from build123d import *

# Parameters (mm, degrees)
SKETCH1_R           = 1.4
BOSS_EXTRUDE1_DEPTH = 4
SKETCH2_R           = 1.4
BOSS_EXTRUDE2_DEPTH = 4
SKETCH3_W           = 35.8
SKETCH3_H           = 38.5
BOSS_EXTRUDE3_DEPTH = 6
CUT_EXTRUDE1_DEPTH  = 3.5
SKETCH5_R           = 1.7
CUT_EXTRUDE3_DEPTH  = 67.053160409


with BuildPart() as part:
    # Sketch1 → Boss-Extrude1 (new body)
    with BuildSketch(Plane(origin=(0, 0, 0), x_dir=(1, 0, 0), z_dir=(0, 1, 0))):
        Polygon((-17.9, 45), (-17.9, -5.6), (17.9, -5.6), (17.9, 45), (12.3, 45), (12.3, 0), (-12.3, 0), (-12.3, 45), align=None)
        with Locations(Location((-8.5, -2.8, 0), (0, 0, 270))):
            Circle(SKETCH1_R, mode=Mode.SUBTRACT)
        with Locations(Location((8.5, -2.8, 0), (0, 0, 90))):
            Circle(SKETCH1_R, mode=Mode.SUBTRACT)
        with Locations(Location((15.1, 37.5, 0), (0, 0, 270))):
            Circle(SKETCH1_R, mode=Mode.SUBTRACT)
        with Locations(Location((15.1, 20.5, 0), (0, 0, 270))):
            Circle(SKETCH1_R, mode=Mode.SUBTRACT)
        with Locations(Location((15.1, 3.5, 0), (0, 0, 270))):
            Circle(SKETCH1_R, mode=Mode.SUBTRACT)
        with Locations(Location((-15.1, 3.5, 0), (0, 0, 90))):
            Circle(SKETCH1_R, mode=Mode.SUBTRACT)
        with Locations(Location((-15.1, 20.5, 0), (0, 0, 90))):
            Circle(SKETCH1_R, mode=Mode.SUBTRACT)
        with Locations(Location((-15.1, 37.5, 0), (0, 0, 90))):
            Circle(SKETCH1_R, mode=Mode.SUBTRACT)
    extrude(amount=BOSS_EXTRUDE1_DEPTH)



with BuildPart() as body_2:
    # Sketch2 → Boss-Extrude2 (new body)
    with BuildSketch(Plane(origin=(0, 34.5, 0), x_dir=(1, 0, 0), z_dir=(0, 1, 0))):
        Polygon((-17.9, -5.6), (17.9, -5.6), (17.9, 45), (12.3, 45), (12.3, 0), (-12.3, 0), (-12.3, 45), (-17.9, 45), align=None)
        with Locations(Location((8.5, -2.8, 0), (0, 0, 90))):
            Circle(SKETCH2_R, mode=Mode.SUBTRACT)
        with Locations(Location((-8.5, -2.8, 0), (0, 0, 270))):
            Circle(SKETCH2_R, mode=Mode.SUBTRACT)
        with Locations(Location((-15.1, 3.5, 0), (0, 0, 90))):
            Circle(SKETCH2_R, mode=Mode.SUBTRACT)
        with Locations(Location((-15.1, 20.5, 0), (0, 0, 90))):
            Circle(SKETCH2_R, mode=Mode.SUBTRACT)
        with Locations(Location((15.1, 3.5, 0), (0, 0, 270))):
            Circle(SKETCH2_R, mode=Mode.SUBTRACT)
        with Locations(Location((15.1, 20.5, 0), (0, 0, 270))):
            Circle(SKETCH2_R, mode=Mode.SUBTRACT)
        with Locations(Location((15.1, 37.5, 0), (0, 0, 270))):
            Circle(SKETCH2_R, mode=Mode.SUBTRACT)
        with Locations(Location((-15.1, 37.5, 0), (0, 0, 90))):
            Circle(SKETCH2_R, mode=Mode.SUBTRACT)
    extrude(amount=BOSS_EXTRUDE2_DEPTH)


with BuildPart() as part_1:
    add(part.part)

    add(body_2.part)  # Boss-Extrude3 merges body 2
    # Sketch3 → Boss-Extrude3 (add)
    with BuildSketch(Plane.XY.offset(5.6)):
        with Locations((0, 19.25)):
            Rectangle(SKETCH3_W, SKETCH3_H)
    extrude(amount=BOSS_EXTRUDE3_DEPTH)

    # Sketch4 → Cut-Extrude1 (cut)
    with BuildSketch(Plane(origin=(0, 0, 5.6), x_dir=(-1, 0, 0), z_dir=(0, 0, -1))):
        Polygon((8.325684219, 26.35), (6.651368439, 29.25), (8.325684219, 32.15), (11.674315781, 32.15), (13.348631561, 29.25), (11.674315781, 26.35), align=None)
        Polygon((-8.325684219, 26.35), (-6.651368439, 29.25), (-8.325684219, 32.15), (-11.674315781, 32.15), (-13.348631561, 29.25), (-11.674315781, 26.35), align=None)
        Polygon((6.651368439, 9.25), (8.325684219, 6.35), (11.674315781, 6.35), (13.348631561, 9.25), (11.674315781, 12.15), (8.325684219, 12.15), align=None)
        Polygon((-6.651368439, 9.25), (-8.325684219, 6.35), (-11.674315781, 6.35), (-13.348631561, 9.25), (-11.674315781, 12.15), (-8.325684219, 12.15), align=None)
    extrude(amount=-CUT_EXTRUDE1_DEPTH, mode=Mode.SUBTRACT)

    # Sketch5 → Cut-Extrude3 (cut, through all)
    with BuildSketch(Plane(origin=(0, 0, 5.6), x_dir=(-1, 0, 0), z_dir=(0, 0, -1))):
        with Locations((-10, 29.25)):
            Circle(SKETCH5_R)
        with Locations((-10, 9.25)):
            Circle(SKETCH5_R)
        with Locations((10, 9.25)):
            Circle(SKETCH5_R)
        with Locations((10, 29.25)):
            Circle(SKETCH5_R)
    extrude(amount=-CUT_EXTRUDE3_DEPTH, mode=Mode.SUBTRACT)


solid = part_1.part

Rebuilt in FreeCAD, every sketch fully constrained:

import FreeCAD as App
import Part
import Sketcher

V = App.Vector
Q = App.Units.Quantity


def add_polygon(sketch, points):
    """Adds a closed chain of lines whose ends are joined by coincident constraints."""
    first, n = sketch.GeometryCount, len(points)
    for a, b in zip(points, points[1:] + points[:1]):
        sketch.addGeometry(Part.LineSegment(App.Vector(*a, 0), App.Vector(*b, 0)), False)
    for i in range(n):
        sketch.addConstraint(Sketcher.Constraint("Coincident", first + i, 2, first + (i + 1) % n, 1))

doc = App.newDocument("Part")
body = doc.addObject("PartDesign::Body", "Body")

# Sketch on XZ plane
sketch1 = body.newObject("Sketcher::SketchObject", "Sketch")
sketch1.AttachmentSupport = (doc.getObject("XZ_Plane"), [""])
sketch1.MapMode = "FlatFace"
add_polygon(sketch1, [(-17.9, -45), (-17.9, 5.6), (17.9, 5.6), (17.9, -45), (12.3, -45), (12.3, 0), (-12.3, 0), (-12.3, -45)])  # lines 0-7
sketch1.addGeometry(Part.Circle(V(-8.5, 2.8, 0), V(0, 0, 1), 1.4), False)  # 8
sketch1.addGeometry(Part.Circle(V(-15.1, -3.5, 0), V(0, 0, 1), 1.4), False)  # 9
sketch1.addGeometry(Part.Circle(V(8.5, 2.8, 0), V(0, 0, 1), 1.4), False)  # 10
sketch1.addGeometry(Part.Circle(V(15.1, -3.5, 0), V(0, 0, 1), 1.4), False)  # 11
sketch1.addGeometry(Part.Circle(V(-15.1, -20.5, 0), V(0, 0, 1), 1.4), False)  # 12
sketch1.addGeometry(Part.Circle(V(-15.1, -37.5, 0), V(0, 0, 1), 1.4), False)  # 13
sketch1.addGeometry(Part.Circle(V(15.1, -20.5, 0), V(0, 0, 1), 1.4), False)  # 14
sketch1.addGeometry(Part.Circle(V(15.1, -37.5, 0), V(0, 0, 1), 1.4), False)  # 15
sketch1.addConstraint([
    Sketcher.Constraint("Vertical", 0),
    Sketcher.Constraint("Horizontal", 1),
    Sketcher.Constraint("Vertical", 2),
    Sketcher.Constraint("Horizontal", 3),
    Sketcher.Constraint("Vertical", 4),
    Sketcher.Constraint("Horizontal", 5),
    Sketcher.Constraint("Vertical", 6),
    Sketcher.Constraint("Horizontal", 7),
    Sketcher.Constraint("Equal", 8, 9),
    Sketcher.Constraint("Equal", 9, 10),
    Sketcher.Constraint("Equal", 10, 11),
    Sketcher.Constraint("Equal", 11, 12),
    Sketcher.Constraint("Equal", 12, 13),
    Sketcher.Constraint("Equal", 13, 14),
    Sketcher.Constraint("Equal", 14, 15),
    Sketcher.Constraint("Symmetric", 4, 2, 5, 2, -1, 1),
    Sketcher.Constraint("Symmetric", 8, 3, 10, 3, -2),
    Sketcher.Constraint("Symmetric", 9, 3, 11, 3, -2),
    Sketcher.Constraint("Symmetric", 12, 3, 14, 3, -2),
    Sketcher.Constraint("Symmetric", 13, 3, 15, 3, -2),
    Sketcher.Constraint("Symmetric", 2, 2, 7, 2, -2),
    Sketcher.Constraint("Vertical", 9, 3, 12, 3),
    Sketcher.Constraint("Vertical", 12, 3, 13, 3),
    Sketcher.Constraint("Diameter", 8, 2.8),
    Sketcher.Constraint("DistanceY", 4, 1, 4, 2, 45.0),
    Sketcher.Constraint("DistanceX", 1, 1, 1, 2, 35.8),
    Sketcher.Constraint("DistanceX", 3, 2, 3, 1, 5.6),
    Sketcher.Constraint("DistanceY", 0, 1, 0, 2, 50.6),
    Sketcher.Constraint("DistanceX", 8, 3, 10, 3, 17.0),
    Sketcher.Constraint("DistanceY", 12, 3, 9, 3, 17.0),
    Sketcher.Constraint("DistanceY", 13, 3, 12, 3, 17.0),
    Sketcher.Constraint("DistanceX", 0, 2, 11, 3, 33.0),
    Sketcher.Constraint("DistanceY", -1, 1, 8, 3, 2.8),
    Sketcher.Constraint("DistanceY", 9, 3, -1, 1, 3.5),
])
pad1 = body.newObject("PartDesign::Pad", "Pad")
pad1.Profile = sketch1
pad1.Length = 4
pad1.Reversed = True
body2 = doc.addObject("PartDesign::Body", "Body001")

# Sketch on XZ plane
sketch2 = body2.newObject("Sketcher::SketchObject", "Sketch001")
sketch2.AttachmentSupport = (doc.getObject("XZ_Plane001"), [""])
sketch2.MapMode = "FlatFace"
sketch2.AttachmentOffset = App.Placement(V(0, 0, -34.5), App.Rotation())
add_polygon(sketch2, [(-17.9, 5.6), (17.9, 5.6), (17.9, -45), (12.3, -45), (12.3, 0), (-12.3, 0), (-12.3, -45), (-17.9, -45)])  # lines 0-7
sketch2.addGeometry(Part.Circle(V(-8.5, 2.8, 0), V(0, 0, 1), 1.4), False)  # 8
sketch2.addGeometry(Part.Circle(V(-15.1, -3.5, 0), V(0, 0, 1), 1.4), False)  # 9
sketch2.addGeometry(Part.Circle(V(8.5, 2.8, 0), V(0, 0, 1), 1.4), False)  # 10
sketch2.addGeometry(Part.Circle(V(15.1, -3.5, 0), V(0, 0, 1), 1.4), False)  # 11
sketch2.addGeometry(Part.Circle(V(-15.1, -20.5, 0), V(0, 0, 1), 1.4), False)  # 12
sketch2.addGeometry(Part.Circle(V(-15.1, -37.5, 0), V(0, 0, 1), 1.4), False)  # 13
sketch2.addGeometry(Part.Circle(V(15.1, -20.5, 0), V(0, 0, 1), 1.4), False)  # 14
sketch2.addGeometry(Part.Circle(V(15.1, -37.5, 0), V(0, 0, 1), 1.4), False)  # 15
sketch2.addConstraint([
    Sketcher.Constraint("Horizontal", 0),
    Sketcher.Constraint("Vertical", 1),
    Sketcher.Constraint("Horizontal", 2),
    Sketcher.Constraint("Vertical", 3),
    Sketcher.Constraint("Horizontal", 4),
    Sketcher.Constraint("Vertical", 5),
    Sketcher.Constraint("Horizontal", 6),
    Sketcher.Constraint("Vertical", 7),
    Sketcher.Constraint("Equal", 8, 9),
    Sketcher.Constraint("Equal", 9, 10),
    Sketcher.Constraint("Equal", 10, 11),
    Sketcher.Constraint("Equal", 11, 12),
    Sketcher.Constraint("Equal", 12, 13),
    Sketcher.Constraint("Equal", 13, 14),
    Sketcher.Constraint("Equal", 14, 15),
    Sketcher.Constraint("Symmetric", 3, 2, 4, 2, -1, 1),
    Sketcher.Constraint("Symmetric", 8, 3, 10, 3, -2),
    Sketcher.Constraint("Symmetric", 9, 3, 11, 3, -2),
    Sketcher.Constraint("Symmetric", 12, 3, 14, 3, -2),
    Sketcher.Constraint("Symmetric", 13, 3, 15, 3, -2),
    Sketcher.Constraint("Symmetric", 1, 2, 6, 2, -2),
    Sketcher.Constraint("Vertical", 9, 3, 12, 3),
    Sketcher.Constraint("Vertical", 12, 3, 13, 3),
    Sketcher.Constraint("Diameter", 8, 2.8),
    Sketcher.Constraint("DistanceY", 3, 1, 3, 2, 45.0),
    Sketcher.Constraint("DistanceX", 0, 1, 0, 2, 35.8),
    Sketcher.Constraint("DistanceX", 2, 2, 2, 1, 5.6),
    Sketcher.Constraint("DistanceY", 1, 2, 1, 1, 50.6),
    Sketcher.Constraint("DistanceX", 8, 3, 10, 3, 17.0),
    Sketcher.Constraint("DistanceY", 12, 3, 9, 3, 17.0),
    Sketcher.Constraint("DistanceY", 13, 3, 12, 3, 17.0),
    Sketcher.Constraint("DistanceX", 9, 3, 0, 2, 33.0),
    Sketcher.Constraint("DistanceY", -1, 1, 8, 3, 2.8),
    Sketcher.Constraint("DistanceY", 9, 3, -1, 1, 3.5),
])
pad2 = body2.newObject("PartDesign::Pad", "Pad001")
pad2.Profile = sketch2
pad2.Length = 4
pad2.Reversed = True
body.AllowCompound = True
doc.recompute()

boolean = body.newObject("PartDesign::Boolean", "Boolean")
boolean.Type = "Fuse"
boolean.addObjects([body2])

# Sketch on XY plane
sketch3 = body.newObject("Sketcher::SketchObject", "Sketch002")
sketch3.AttachmentSupport = (doc.getObject("XY_Plane"), [""])
sketch3.MapMode = "FlatFace"
sketch3.AttachmentOffset = App.Placement(V(0, 0, 5.6), App.Rotation())
add_polygon(sketch3, [(-18, 38), (-18, 0), (18, 0), (18, 38)])  # lines 0-3
sketch3.addConstraint([
    Sketcher.Constraint("Vertical", 0),
    Sketcher.Constraint("Horizontal", 1),
    Sketcher.Constraint("Vertical", 2),
    Sketcher.Constraint("Horizontal", 3),
    Sketcher.Constraint("Symmetric", 0, 2, 1, 2, -1, 1),
    Sketcher.Constraint("DistanceX", 1, 1, 1, 2, 35.8),
    Sketcher.Constraint("DistanceY", 0, 2, 0, 1, 38.5),
])
pad3 = body.newObject("PartDesign::Pad", "Pad002")
pad3.Profile = sketch3
pad3.Length = 6

# Sketch on XY plane
sketch4 = body.newObject("Sketcher::SketchObject", "Sketch003")
sketch4.AttachmentSupport = (doc.getObject("XY_Plane"), [""])
sketch4.MapMode = "FlatFace"
sketch4.AttachmentOffset = App.Placement(V(0, 0, 5.6), App.Rotation())
add_polygon(sketch4, [(-6.7, 29.2), (-8.3, 26.4), (-11.7, 26.4), (-13.3, 29.2), (-11.7, 32.1), (-8.3, 32.1)])  # lines 0-5
add_polygon(sketch4, [(8.3, 26.4), (6.7, 29.2), (8.3, 32.1), (11.7, 32.1), (13.3, 29.2), (11.7, 26.4)])  # lines 6-11
add_polygon(sketch4, [(-6.7, 9.2), (-8.3, 6.3), (-11.7, 6.3), (-13.3, 9.2), (-11.7, 12.2), (-8.3, 12.2)])  # lines 12-17
add_polygon(sketch4, [(8.3, 6.3), (6.7, 9.2), (8.3, 12.2), (11.7, 12.2), (13.3, 9.2), (11.7, 6.3)])  # lines 18-23
sketch4.addConstraint([
    Sketcher.Constraint("Horizontal", 1),
    Sketcher.Constraint("Horizontal", 4),
    Sketcher.Constraint("Horizontal", 8),
    Sketcher.Constraint("Horizontal", 11),
    Sketcher.Constraint("Horizontal", 13),
    Sketcher.Constraint("Horizontal", 16),
    Sketcher.Constraint("Horizontal", 20),
    Sketcher.Constraint("Horizontal", 23),
    Sketcher.Constraint("Symmetric", 5, 2, 6, 2, -2),
    Sketcher.Constraint("Symmetric", 4, 2, 7, 2, -2),
    Sketcher.Constraint("Symmetric", 2, 2, 9, 2, -2),
    Sketcher.Constraint("Symmetric", 1, 2, 10, 2, -2),
    Sketcher.Constraint("Symmetric", 17, 2, 18, 2, -2),
    Sketcher.Constraint("Symmetric", 16, 2, 19, 2, -2),
    Sketcher.Constraint("Symmetric", 14, 2, 21, 2, -2),
    Sketcher.Constraint("Symmetric", 13, 2, 22, 2, -2),
    Sketcher.Constraint("Parallel", 0, 3),
    Sketcher.Constraint("Parallel", 2, 5),
    Sketcher.Constraint("Parallel", 5, 6),
    Sketcher.Constraint("Parallel", 3, 7),
    Sketcher.Constraint("Parallel", 6, 9),
    Sketcher.Constraint("Parallel", 10, 12),
    Sketcher.Constraint("Parallel", 9, 14),
    Sketcher.Constraint("Parallel", 12, 15),
    Sketcher.Constraint("Parallel", 14, 17),
    Sketcher.Constraint("Parallel", 17, 18),
    Sketcher.Constraint("Parallel", 18, 21),
    Sketcher.Constraint("Horizontal", 2, 2, 5, 2),
    Sketcher.Constraint("Horizontal", 14, 2, 17, 2),
    Sketcher.Constraint("Vertical", 1, 2, 3, 2),
    Sketcher.Constraint("Vertical", 4, 2, 12, 2),
    Sketcher.Constraint("Vertical", 3, 2, 13, 2),
    Sketcher.Constraint("Vertical", 2, 2, 14, 2),
    Sketcher.Constraint("Vertical", 13, 2, 15, 2),
    Sketcher.Constraint("Angle", 0, Q("-120 deg")),
    Sketcher.Constraint("DistanceX", 3, 2, 7, 2, 20.0),
    Sketcher.Constraint("DistanceY", 12, 2, 0, 2, 20.0),
    Sketcher.Constraint("DistanceY", 1, 2, 2, 2, 2.9),
    Sketcher.Constraint("DistanceY", -1, 1, 0, 2, 26.35),
    Sketcher.Constraint("DistanceX", 1, 2, 1, 1, 3.348632),
])
pocket1 = body.newObject("PartDesign::Pocket", "Pocket")
pocket1.Profile = sketch4
pocket1.Length = 3.5
pocket1.Reversed = True

# Sketch on XY plane
sketch5 = body.newObject("Sketcher::SketchObject", "Sketch004")
sketch5.AttachmentSupport = (doc.getObject("XY_Plane"), [""])
sketch5.MapMode = "FlatFace"
sketch5.AttachmentOffset = App.Placement(V(0, 0, 5.6), App.Rotation())
sketch5.addGeometry([
    Part.Circle(V(10, 29.2, 0), V(0, 0, 1), 1.7),
    Part.Circle(V(10, 9.2, 0), V(0, 0, 1), 1.7),
    Part.Circle(V(-10, 9.2, 0), V(0, 0, 1), 1.7),
    Part.Circle(V(-10, 29.2, 0), V(0, 0, 1), 1.7),
], False)
sketch5.addConstraint([
    Sketcher.Constraint("Equal", 0, 1),
    Sketcher.Constraint("Equal", 1, 2),
    Sketcher.Constraint("Equal", 2, 3),
    Sketcher.Constraint("Symmetric", 1, 3, 2, 3, -2),
    Sketcher.Constraint("Symmetric", 0, 3, 3, 3, -2),
    Sketcher.Constraint("Vertical", 0, 3, 1, 3),
    Sketcher.Constraint("Diameter", 0, 3.4),
    Sketcher.Constraint("DistanceX", -1, 1, 0, 3, 10.0),
    Sketcher.Constraint("DistanceY", 1, 3, 0, 3, 20.0),
    Sketcher.Constraint("DistanceY", -1, 1, 0, 3, 29.25),
])
pocket2 = body.newObject("PartDesign::Pocket", "Pocket001")
pocket2.Profile = sketch5
pocket2.Type = "ThroughAll"
pocket2.Reversed = True

doc.recompute()
